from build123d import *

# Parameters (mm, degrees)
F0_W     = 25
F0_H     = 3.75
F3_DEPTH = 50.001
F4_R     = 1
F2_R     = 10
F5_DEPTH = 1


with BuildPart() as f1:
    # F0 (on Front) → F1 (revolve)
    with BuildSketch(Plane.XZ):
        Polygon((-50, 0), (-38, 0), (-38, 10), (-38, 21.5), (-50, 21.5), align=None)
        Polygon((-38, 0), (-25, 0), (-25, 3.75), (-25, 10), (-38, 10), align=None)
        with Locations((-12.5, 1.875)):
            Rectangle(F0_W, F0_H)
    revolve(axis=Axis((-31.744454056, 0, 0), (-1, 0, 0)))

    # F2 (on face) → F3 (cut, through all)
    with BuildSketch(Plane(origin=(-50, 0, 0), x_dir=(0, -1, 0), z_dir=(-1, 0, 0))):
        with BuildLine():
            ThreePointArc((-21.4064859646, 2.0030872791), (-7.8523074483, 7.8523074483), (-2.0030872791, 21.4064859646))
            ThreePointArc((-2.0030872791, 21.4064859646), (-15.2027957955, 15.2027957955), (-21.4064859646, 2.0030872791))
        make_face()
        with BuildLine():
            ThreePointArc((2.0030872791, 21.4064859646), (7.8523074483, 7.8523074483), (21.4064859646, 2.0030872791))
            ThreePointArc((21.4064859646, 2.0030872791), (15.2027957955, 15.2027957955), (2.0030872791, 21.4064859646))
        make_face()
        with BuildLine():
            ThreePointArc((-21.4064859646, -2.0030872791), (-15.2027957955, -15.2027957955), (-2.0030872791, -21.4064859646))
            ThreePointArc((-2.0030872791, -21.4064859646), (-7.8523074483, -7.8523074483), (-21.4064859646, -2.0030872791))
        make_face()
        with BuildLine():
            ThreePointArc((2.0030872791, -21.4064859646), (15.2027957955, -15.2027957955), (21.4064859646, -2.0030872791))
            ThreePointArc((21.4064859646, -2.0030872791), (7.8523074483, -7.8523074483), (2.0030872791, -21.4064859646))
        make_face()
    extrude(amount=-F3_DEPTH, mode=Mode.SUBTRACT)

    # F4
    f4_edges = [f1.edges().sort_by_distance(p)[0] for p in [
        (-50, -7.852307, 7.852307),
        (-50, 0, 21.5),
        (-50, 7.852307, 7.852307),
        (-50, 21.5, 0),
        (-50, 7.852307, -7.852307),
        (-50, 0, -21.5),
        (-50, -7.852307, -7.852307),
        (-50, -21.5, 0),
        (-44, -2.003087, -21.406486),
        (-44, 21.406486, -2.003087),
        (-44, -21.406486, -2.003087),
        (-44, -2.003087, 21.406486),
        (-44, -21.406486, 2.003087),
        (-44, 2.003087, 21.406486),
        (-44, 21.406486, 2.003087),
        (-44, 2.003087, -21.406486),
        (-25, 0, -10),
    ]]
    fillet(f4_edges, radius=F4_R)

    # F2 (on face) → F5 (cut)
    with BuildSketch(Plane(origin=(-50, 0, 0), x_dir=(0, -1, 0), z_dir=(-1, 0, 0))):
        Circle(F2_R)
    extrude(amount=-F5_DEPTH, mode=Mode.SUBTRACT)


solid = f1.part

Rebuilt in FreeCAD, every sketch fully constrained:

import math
import FreeCAD as App
import Part
import Sketcher
from FreeCAD import Vector
Q = App.Units.Quantity


def edges_at(feature, points):
    """Names of the edges that pass closest to the given points."""
    edges = feature.Shape.Edges
    near = lambda p: min(range(len(edges)), key=lambda i: edges[i].distToShape(Part.Vertex(*p))[0])
    return sorted({f"Edge{near(p) + 1}" for p in points})


def add_polygon(sketch, points):
    """Adds a closed chain of lines whose ends are joined by coincident constraints."""
    first, n = sketch.GeometryCount, len(points)
    for a, b in zip(points, points[1:] + points[:1]):
        sketch.addGeometry(Part.LineSegment(App.Vector(*a, 0), App.Vector(*b, 0)), False)
    for i in range(n):
        sketch.addConstraint(Sketcher.Constraint("Coincident", first + i, 2, first + (i + 1) % n, 1))

doc = App.newDocument("Part")
body = doc.addObject("PartDesign::Body", "Body")

# Sketch on XZ plane
sketch1 = doc.addObject("Sketcher::SketchObject", "Sketch")
body.addObject(sketch1)
sketch1.AttachmentSupport = (doc.XZ_Plane, [""])
sketch1.MapMode = "FlatFace"
add_polygon(sketch1, [(-50, 0), (0, 0), (0, 3.75), (-25, 3.75), (-25, 10), (-38, 10), (-38, 21.5), (-50, 21.5)])  # lines 0-7
sketch1.addConstraint([
    Sketcher.Constraint("Horizontal", 0),
    Sketcher.Constraint("Vertical", 1),
    Sketcher.Constraint("Horizontal", 2),
    Sketcher.Constraint("Vertical", 3),
    Sketcher.Constraint("Horizontal", 4),
    Sketcher.Constraint("Vertical", 5),
    Sketcher.Constraint("Horizontal", 6),
    Sketcher.Constraint("Vertical", 7),
    Sketcher.Constraint("Coincident", 0, 2, -1, 1),
    Sketcher.Constraint("DistanceX", 0, 1, 0, 2, Q("50 mm")),
    Sketcher.Constraint("DistanceX", 2, 2, 2, 1, Q("25 mm")),
    Sketcher.Constraint("DistanceX", 4, 2, 4, 1, Q("13 mm")),
    Sketcher.Constraint("DistanceY", 5, 1, 5, 2, Q("11.5 mm")),
    Sketcher.Constraint("DistanceY", 7, 2, 7, 1, Q("21.5 mm")),
    Sketcher.Constraint("DistanceY", 1, 1, 1, 2, Q("3.75 mm")),
])
revolution = doc.addObject("PartDesign::Revolution", "Revolution")
body.addObject(revolution)
revolution.Profile = sketch1
revolution.ReferenceAxis = (sketch1, ["H_Axis"])
revolution.Angle = 360

# Sketch on YZ plane
sketch2 = doc.addObject("Sketcher::SketchObject", "Sketch001")
body.addObject(sketch2)
sketch2.AttachmentSupport = (doc.YZ_Plane, [""])
sketch2.MapMode = "FlatFace"
sketch2.AttachmentOffset = App.Placement(Vector(0, 0, -50), App.Rotation())
sketch2.addGeometry([
    Part.ArcOfCircle(Part.Circle(Vector(21.994443, 21.994443, 0), Vector(0, 0, 1), 20), math.radians(-178.315384), math.radians(-91.684616)),  # 0
    Part.ArcOfCircle(Part.Circle(Vector(0, 0, 0), Vector(0, 0, 1), 21.5), math.radians(5.34582), math.radians(84.65418)),  # 1
    Part.ArcOfCircle(Part.Circle(Vector(-21.994443, 21.994443, 0), Vector(0, 0, 1), 20), math.radians(-88.315384), math.radians(-1.684616)),  # 2
    Part.ArcOfCircle(Part.Circle(Vector(0, 0, 0), Vector(0, 0, 1), 21.5), math.radians(95.34582), math.radians(174.65418)),  # 3
    Part.ArcOfCircle(Part.Circle(Vector(0, 0, 0), Vector(0, 0, 1), 21.5), math.radians(-84.65418), math.radians(-5.34582)),  # 4
    Part.ArcOfCircle(Part.Circle(Vector(21.994443, -21.994443, 0), Vector(0, 0, 1), 20), math.radians(91.684616), math.radians(178.315384)),  # 5
    Part.ArcOfCircle(Part.Circle(Vector(0, 0, 0), Vector(0, 0, 1), 21.5), math.radians(-174.65418), math.radians(-95.34582)),  # 6
    Part.ArcOfCircle(Part.Circle(Vector(-21.994443, -21.994443, 0), Vector(0, 0, 1), 20), math.radians(1.684616), math.radians(88.315384)),  # 7
], False)
sketch2.addConstraint([
    Sketcher.Constraint("Coincident", 0, 1, 1, 2),
    Sketcher.Constraint("Coincident", 1, 1, 0, 2),
    Sketcher.Constraint("Coincident", 2, 1, 3, 2),
    Sketcher.Constraint("Coincident", 3, 1, 2, 2),
    Sketcher.Constraint("Coincident", 4, 1, 5, 2),
    Sketcher.Constraint("Coincident", 5, 1, 4, 2),
    Sketcher.Constraint("Coincident", 6, 1, 7, 2),
    Sketcher.Constraint("Coincident", 7, 1, 6, 2),
    Sketcher.Constraint("Coincident", 1, 3, -1, 1),
    Sketcher.Constraint("Coincident", 3, 3, -1, 1),
    Sketcher.Constraint("Coincident", 4, 3, -1, 1),
    Sketcher.Constraint("Coincident", 6, 3, -1, 1),
    Sketcher.Constraint("Equal", 0, 2),
    Sketcher.Constraint("Equal", 1, 3),
    Sketcher.Constraint("Equal", 3, 4),
    Sketcher.Constraint("Equal", 2, 5),
    Sketcher.Constraint("Equal", 4, 6),
    Sketcher.Constraint("Equal", 5, 7),
    Sketcher.Constraint("Symmetric", 2, 3, 5, 3, -1, 1),
    Sketcher.Constraint("Symmetric", 0, 3, 7, 3, -1, 1),
    Sketcher.Constraint("Symmetric", 0, 3, 2, 3, -2),
    Sketcher.Constraint("Radius", 0, Q("20 mm")),
    Sketcher.Constraint("Radius", 1, Q("21.5 mm")),
    Sketcher.Constraint("DistanceX", -1, 1, 0, 3, Q("21.994443 mm")),
    Sketcher.Constraint("DistanceY", -1, 1, 0, 3, Q("21.994443 mm")),
])
pocket1 = doc.addObject("PartDesign::Pocket", "Pocket")
body.addObject(pocket1)
pocket1.Profile = sketch2
pocket1.Type = "ThroughAll"
pocket1.Reversed = True
doc.recompute()

fillet = doc.addObject("PartDesign::Fillet", "Fillet")
body.addObject(fillet)
fillet.Base = (pocket1, edges_at(pocket1, [
    (-50, -7.852, 7.852),
    (-50, 0, 21.5),
    (-50, 7.852, 7.852),
    (-50, 21.5, 0),
    (-50, 7.852, -7.852),
    (-50, 0, -21.5),
    (-50, -7.852, -7.852),
    (-50, -21.5, 0),
    (-44, -2.003, -21.406),
    (-44, 21.406, -2.003),
    (-44, -21.406, -2.003),
    (-44, -2.003, 21.406),
    (-44, -21.406, 2.003),
    (-44, 2.003, 21.406),
    (-44, 21.406, 2.003),
    (-44, 2.003, -21.406),
    (-25, 0, -10),
]))
fillet.Radius = 1

# Sketch on YZ plane
sketch3 = doc.addObject("Sketcher::SketchObject", "Sketch002")
body.addObject(sketch3)
sketch3.AttachmentSupport = (doc.YZ_Plane, [""])
sketch3.MapMode = "FlatFace"
sketch3.AttachmentOffset = App.Placement(Vector(0, 0, -50), App.Rotation())
sketch3.addGeometry(Part.Circle(Vector(0, 0, 0), Vector(0, 0, 1), 10), False)
sketch3.addConstraint([
    Sketcher.Constraint("Coincident", 0, 3, -1, 1),
    Sketcher.Constraint("Diameter", 0, Q("20 mm")),
])
pocket2 = doc.addObject("PartDesign::Pocket", "Pocket001")
body.addObject(pocket2)
pocket2.Profile = sketch3
pocket2.Length = 1
pocket2.Reversed = True

doc.recompute()
